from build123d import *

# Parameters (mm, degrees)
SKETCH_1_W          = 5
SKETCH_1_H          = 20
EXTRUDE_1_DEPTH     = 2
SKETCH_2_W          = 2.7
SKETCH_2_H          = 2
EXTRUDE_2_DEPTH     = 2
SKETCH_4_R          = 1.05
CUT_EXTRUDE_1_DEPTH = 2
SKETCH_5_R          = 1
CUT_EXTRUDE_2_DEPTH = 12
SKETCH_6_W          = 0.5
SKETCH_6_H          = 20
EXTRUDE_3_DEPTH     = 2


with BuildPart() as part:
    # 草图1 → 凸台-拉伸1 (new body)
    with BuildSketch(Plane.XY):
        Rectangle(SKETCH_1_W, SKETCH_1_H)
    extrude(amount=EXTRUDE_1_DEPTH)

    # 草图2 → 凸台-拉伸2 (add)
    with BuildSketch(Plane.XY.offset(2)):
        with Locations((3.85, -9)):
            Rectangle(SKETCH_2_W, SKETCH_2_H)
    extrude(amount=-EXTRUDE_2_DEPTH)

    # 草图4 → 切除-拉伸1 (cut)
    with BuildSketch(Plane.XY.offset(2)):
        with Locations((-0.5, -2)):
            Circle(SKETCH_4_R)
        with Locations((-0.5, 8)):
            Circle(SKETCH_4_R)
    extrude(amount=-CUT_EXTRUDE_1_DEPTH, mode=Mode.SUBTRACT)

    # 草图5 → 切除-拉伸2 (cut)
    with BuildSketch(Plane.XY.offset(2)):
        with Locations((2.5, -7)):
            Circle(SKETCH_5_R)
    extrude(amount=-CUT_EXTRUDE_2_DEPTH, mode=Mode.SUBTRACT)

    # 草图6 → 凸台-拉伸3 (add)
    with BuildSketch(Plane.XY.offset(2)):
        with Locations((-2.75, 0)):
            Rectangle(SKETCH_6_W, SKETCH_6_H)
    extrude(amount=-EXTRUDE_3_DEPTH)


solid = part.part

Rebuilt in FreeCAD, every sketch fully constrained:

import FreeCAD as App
import Part
import Sketcher

V = App.Vector

doc = App.newDocument("Part")
body = doc.addObject("PartDesign::Body", "Body")

# Sketch on XY plane
sketch1 = body.newObject("Sketcher::SketchObject", "Sketch")
sketch1.AttachmentSupport = (doc.getObject("XY_Plane"), [""])
sketch1.MapMode = "FlatFace"
sketch1.addGeometry([
    Part.LineSegment(V(-2, 10, 0), V(-2, -10, 0)),
    Part.LineSegment(V(-2, -10, 0), V(2, -10, 0)),
    Part.LineSegment(V(2, -10, 0), V(2, 10, 0)),
    Part.LineSegment(V(2, 10, 0), V(-2, 10, 0)),
], False)
sketch1.addConstraint([
    Sketcher.Constraint("Coincident", 0, 2, 1, 1),
    Sketcher.Constraint("Coincident", 1, 2, 2, 1),
    Sketcher.Constraint("Coincident", 2, 2, 3, 1),
    Sketcher.Constraint("Coincident", 3, 2, 0, 1),
    Sketcher.Constraint("Vertical", 0),
    Sketcher.Constraint("Horizontal", 1),
    Sketcher.Constraint("Vertical", 2),
    Sketcher.Constraint("Horizontal", 3),
    Sketcher.Constraint("Symmetric", 0, 2, 2, 2, -1, 1),
    Sketcher.Constraint("DistanceX", 1, 1, 1, 2, 5.0),
    Sketcher.Constraint("DistanceY", 0, 2, 0, 1, 20.0),
])
pad1 = body.newObject("PartDesign::Pad", "Pad")
pad1.Profile = sketch1
pad1.Length = 2

# Sketch on XY plane
sketch2 = body.newObject("Sketcher::SketchObject", "Sketch001")
sketch2.AttachmentSupport = (doc.getObject("XY_Plane"), [""])
sketch2.MapMode = "FlatFace"
sketch2.AttachmentOffset = App.Placement(V(0, 0, 2), App.Rotation())
sketch2.addGeometry([
    Part.LineSegment(V(2.5, -8, 0), V(2.5, -10, 0)),
    Part.LineSegment(V(2.5, -10, 0), V(5.2, -10, 0)),
    Part.LineSegment(V(5.2, -10, 0), V(5.2, -8, 0)),
    Part.LineSegment(V(5.2, -8, 0), V(2.5, -8, 0)),
], False)
sketch2.addConstraint([
    Sketcher.Constraint("Coincident", 0, 2, 1, 1),
    Sketcher.Constraint("Coincident", 1, 2, 2, 1),
    Sketcher.Constraint("Coincident", 2, 2, 3, 1),
    Sketcher.Constraint("Coincident", 3, 2, 0, 1),
    Sketcher.Constraint("Vertical", 0),
    Sketcher.Constraint("Horizontal", 1),
    Sketcher.Constraint("Vertical", 2),
    Sketcher.Constraint("Horizontal", 3),
    Sketcher.Constraint("DistanceY", 0, 2, 0, 1, 2.0),
    Sketcher.Constraint("DistanceX", 1, 1, 1, 2, 2.7),
    Sketcher.Constraint("DistanceY", 0, 2, -1, 1, 10.0),
    Sketcher.Constraint("DistanceX", -1, 1, 0, 2, 2.5),
])
pad2 = body.newObject("PartDesign::Pad", "Pad001")
pad2.Profile = sketch2
pad2.Length = 2
pad2.Reversed = True

# Sketch on XY plane
sketch3 = body.newObject("Sketcher::SketchObject", "Sketch002")
sketch3.AttachmentSupport = (doc.getObject("XY_Plane"), [""])
sketch3.MapMode = "FlatFace"
sketch3.AttachmentOffset = App.Placement(V(0, 0, 2), App.Rotation())
sketch3.addGeometry([
    Part.Circle(V(-0.5, -2, 0), V(0, 0, 1), 1.1),
    Part.Circle(V(-0.5, 8, 0), V(0, 0, 1), 1.1),
], False)
sketch3.addConstraint([
    Sketcher.Constraint("Equal", 0, 1),
    Sketcher.Constraint("Vertical", 0, 3, 1, 3),
    Sketcher.Constraint("Diameter", 0, 2.1),
    Sketcher.Constraint("DistanceY", 0, 3, -1, 1, 2.0),
    Sketcher.Constraint("DistanceY", -1, 1, 1, 3, 8.0),
    Sketcher.Constraint("DistanceX", 0, 3, -1, 1, 0.5),
])
pocket1 = body.newObject("PartDesign::Pocket", "Pocket")
pocket1.Profile = sketch3
pocket1.Length = 2

# Sketch on XY plane
sketch4 = body.newObject("Sketcher::SketchObject", "Sketch003")
sketch4.AttachmentSupport = (doc.getObject("XY_Plane"), [""])
sketch4.MapMode = "FlatFace"
sketch4.AttachmentOffset = App.Placement(V(0, 0, 2), App.Rotation())
sketch4.addGeometry(Part.Circle(V(2.5, -7, 0), V(0, 0, 1), 1), False)
sketch4.addConstraint([
    Sketcher.Constraint("Diameter", 0, 2.0),
    Sketcher.Constraint("DistanceY", 0, 3, -1, 1, 7.0),
    Sketcher.Constraint("DistanceX", -1, 1, 0, 3, 2.5),
])
pocket2 = body.newObject("PartDesign::Pocket", "Pocket001")
pocket2.Profile = sketch4
pocket2.Length = 12

# Sketch on XY plane
sketch5 = body.newObject("Sketcher::SketchObject", "Sketch004")
sketch5.AttachmentSupport = (doc.getObject("XY_Plane"), [""])
sketch5.MapMode = "FlatFace"
sketch5.AttachmentOffset = App.Placement(V(0, 0, 2), App.Rotation())
sketch5.addGeometry([
    Part.LineSegment(V(-3, 10, 0), V(-3, -10, 0)),
    Part.LineSegment(V(-3, -10, 0), V(-2.5, -10, 0)),
    Part.LineSegment(V(-2.5, -10, 0), V(-2.5, 10, 0)),
    Part.LineSegment(V(-2.5, 10, 0), V(-3, 10, 0)),
], False)
sketch5.addConstraint([
    Sketcher.Constraint("Coincident", 0, 2, 1, 1),
    Sketcher.Constraint("Coincident", 1, 2, 2, 1),
    Sketcher.Constraint("Coincident", 2, 2, 3, 1),
    Sketcher.Constraint("Coincident", 3, 2, 0, 1),
    Sketcher.Constraint("Vertical", 0),
    Sketcher.Constraint("Horizontal", 1),
    Sketcher.Constraint("Vertical", 2),
    Sketcher.Constraint("Horizontal", 3),
    Sketcher.Constraint("DistanceY", 0, 2, 0, 1, 20.0),
    Sketcher.Constraint("DistanceX", 1, 1, 1, 2, 0.5),
    Sketcher.Constraint("DistanceX", 0, 2, -1, 1, 3.0),
    Sketcher.Constraint("DistanceY", 0, 2, -1, 1, 10.0),
])
pad3 = body.newObject("PartDesign::Pad", "Pad002")
pad3.Profile = sketch5
pad3.Length = 2
pad3.Reversed = True

doc.recompute()
